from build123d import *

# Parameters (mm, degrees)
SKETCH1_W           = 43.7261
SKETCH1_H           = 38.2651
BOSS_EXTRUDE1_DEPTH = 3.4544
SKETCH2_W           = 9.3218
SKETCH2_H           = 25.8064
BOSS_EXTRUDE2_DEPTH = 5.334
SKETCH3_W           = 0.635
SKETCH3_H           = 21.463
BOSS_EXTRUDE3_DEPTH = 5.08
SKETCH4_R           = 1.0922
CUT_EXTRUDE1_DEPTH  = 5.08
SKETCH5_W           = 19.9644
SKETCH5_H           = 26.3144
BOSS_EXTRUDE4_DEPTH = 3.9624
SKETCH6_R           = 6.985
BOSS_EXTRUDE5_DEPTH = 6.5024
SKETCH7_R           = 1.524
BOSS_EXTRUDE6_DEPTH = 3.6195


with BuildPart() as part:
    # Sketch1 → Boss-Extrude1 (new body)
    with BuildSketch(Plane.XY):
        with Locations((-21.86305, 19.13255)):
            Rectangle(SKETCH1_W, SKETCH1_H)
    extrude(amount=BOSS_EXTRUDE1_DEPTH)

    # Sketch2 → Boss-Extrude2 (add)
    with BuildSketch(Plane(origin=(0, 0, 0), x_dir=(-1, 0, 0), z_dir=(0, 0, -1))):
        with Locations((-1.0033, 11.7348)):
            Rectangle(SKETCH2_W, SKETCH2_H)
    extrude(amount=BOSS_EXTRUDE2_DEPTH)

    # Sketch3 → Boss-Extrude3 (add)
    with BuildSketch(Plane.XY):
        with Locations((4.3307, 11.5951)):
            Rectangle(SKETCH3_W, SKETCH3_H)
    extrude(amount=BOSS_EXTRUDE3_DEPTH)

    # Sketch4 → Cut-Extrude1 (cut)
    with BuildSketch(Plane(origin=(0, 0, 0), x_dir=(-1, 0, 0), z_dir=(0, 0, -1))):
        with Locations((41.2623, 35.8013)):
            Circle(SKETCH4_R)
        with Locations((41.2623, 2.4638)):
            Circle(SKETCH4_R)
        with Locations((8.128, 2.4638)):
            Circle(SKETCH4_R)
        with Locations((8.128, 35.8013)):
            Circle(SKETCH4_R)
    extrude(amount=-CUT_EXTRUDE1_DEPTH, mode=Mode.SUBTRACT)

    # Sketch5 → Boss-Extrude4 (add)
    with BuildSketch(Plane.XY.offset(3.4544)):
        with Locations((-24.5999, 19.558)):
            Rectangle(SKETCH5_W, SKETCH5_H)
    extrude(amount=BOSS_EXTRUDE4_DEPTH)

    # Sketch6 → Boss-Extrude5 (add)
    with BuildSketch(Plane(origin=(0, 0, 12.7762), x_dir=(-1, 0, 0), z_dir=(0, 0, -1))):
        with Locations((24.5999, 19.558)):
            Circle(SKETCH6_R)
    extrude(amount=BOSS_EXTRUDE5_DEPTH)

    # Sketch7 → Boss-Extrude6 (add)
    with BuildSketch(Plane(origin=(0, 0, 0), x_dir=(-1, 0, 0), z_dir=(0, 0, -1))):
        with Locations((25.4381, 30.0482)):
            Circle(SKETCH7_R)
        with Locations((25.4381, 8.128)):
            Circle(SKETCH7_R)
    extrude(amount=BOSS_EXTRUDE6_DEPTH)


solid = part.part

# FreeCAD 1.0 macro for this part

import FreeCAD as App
import Part
import Sketcher

V = App.Vector
Q = App.Units.Quantity


def add_polygon(sketch, points):
    """Adds a closed chain of lines whose ends are joined by coincident constraints."""
    first, n = sketch.GeometryCount, len(points)
    for a, b in zip(points, points[1:] + points[:1]):
        sketch.addGeometry(Part.LineSegment(App.Vector(*a, 0), App.Vector(*b, 0)), False)
    for i in range(n):
        sketch.addConstraint(Sketcher.Constraint("Coincident", first + i, 2, first + (i + 1) % n, 1))

doc = App.newDocument("Part")
body = doc.addObject("PartDesign::Body", "Body")

sketch1 = body.newObject("Sketcher::SketchObject", "Sketch")
sketch1.AttachmentSupport = (doc.getObject("XY_Plane"), [""])
sketch1.MapMode = "FlatFace"
add_polygon(sketch1, [(-44, 38), (-44, 0), (0, 0), (0, 38)])
sketch1.addConstraint([
    Sketcher.Constraint("Vertical", 0),
    Sketcher.Constraint("Horizontal", 1),
    Sketcher.Constraint("Vertical", 2),
    Sketcher.Constraint("Horizontal", 3),
    Sketcher.Constraint("Coincident", 1, 2, -1, 1),
    Sketcher.Constraint("DistanceX", 1, 1, 1, 2, Q("1.7215 in")),
    Sketcher.Constraint("DistanceY", 0, 2, 0, 1, Q("1.5065 in")),
])
pad1 = body.newObject("PartDesign::Pad", "Pad")
pad1.Profile = sketch1
pad1.Length = Q("0.136 in")

sketch2 = body.newObject("Sketcher::SketchObject", "Sketch001")
sketch2.AttachmentSupport = (doc.getObject("XY_Plane"), [""])
sketch2.MapMode = "FlatFace"
add_polygon(sketch2, [(6, 25), (6, -1), (-4, -1), (-4, 25)])
sketch2.addConstraint([
    Sketcher.Constraint("Vertical", 0),
    Sketcher.Constraint("Horizontal", 1),
    Sketcher.Constraint("Vertical", 2),
    Sketcher.Constraint("Horizontal", 3),
    Sketcher.Constraint("DistanceX", 1, 2, 1, 1, Q("0.367 in")),
    Sketcher.Constraint("DistanceY", 0, 2, 0, 1, Q("1.016 in")),
    Sketcher.Constraint("DistanceY", -1, 1, 2, 2, Q("0.97 in")),
    Sketcher.Constraint("DistanceX", -1, 1, 0, 2, Q("0.223 in")),
])
pad2 = body.newObject("PartDesign::Pad", "Pad001")
pad2.Profile = sketch2
pad2.Length = Q("0.21 in")
pad2.Reversed = True

sketch3 = body.newObject("Sketcher::SketchObject", "Sketch002")
sketch3.AttachmentSupport = (doc.getObject("XY_Plane"), [""])
sketch3.MapMode = "FlatFace"
add_polygon(sketch3, [(4, 22.3), (4, 0.9), (4.6, 0.9), (4.6, 22.3)])
sketch3.addConstraint([
    Sketcher.Constraint("Vertical", 0),
    Sketcher.Constraint("Horizontal", 1),
    Sketcher.Constraint("Vertical", 2),
    Sketcher.Constraint("Horizontal", 3),
    Sketcher.Constraint("DistanceX", 1, 1, 1, 2, Q("0.025 in")),
    Sketcher.Constraint("DistanceY", 0, 2, 0, 1, Q("0.845 in")),
    Sketcher.Constraint("DistanceX", -1, 1, 0, 2, Q("0.158 in")),
    Sketcher.Constraint("DistanceY", -1, 1, 0, 2, Q("0.034 in")),
])
pad3 = body.newObject("PartDesign::Pad", "Pad002")
pad3.Profile = sketch3
pad3.Length = Q("0.2 in")

sketch4 = body.newObject("Sketcher::SketchObject", "Sketch003")
sketch4.AttachmentSupport = (doc.getObject("XY_Plane"), [""])
sketch4.MapMode = "FlatFace"
sketch4.addGeometry([
    Part.Circle(V(-41.3, 35.8, 0), V(0, 0, 1), 1.1),
    Part.Circle(V(-41.3, 2.5, 0), V(0, 0, 1), 1.1),
    Part.Circle(V(-8.1, 2.5, 0), V(0, 0, 1), 1.1),
    Part.Circle(V(-8.1, 35.8, 0), V(0, 0, 1), 1.1),
], False)
sketch4.addConstraint([
    Sketcher.Constraint("Equal", 0, 1),
    Sketcher.Constraint("Equal", 1, 2),
    Sketcher.Constraint("Equal", 2, 3),
    Sketcher.Constraint("Horizontal", 1, 3, 2, 3),
    Sketcher.Constraint("Horizontal", 0, 3, 3, 3),
    Sketcher.Constraint("Vertical", 0, 3, 1, 3),
    Sketcher.Constraint("Vertical", 2, 3, 3, 3),
    Sketcher.Constraint("Diameter", 0, Q("0.086 in")),
    Sketcher.Constraint("DistanceX", 2, 3, -1, 1, Q("0.32 in")),
    Sketcher.Constraint("DistanceY", -1, 1, 1, 3, Q("0.097 in")),
    Sketcher.Constraint("DistanceY", 1, 3, 0, 3, Q("1.3125 in")),
    Sketcher.Constraint("DistanceX", 0, 3, -1, 1, Q("1.6245 in")),
])
pocket1 = body.newObject("PartDesign::Pocket", "Pocket")
pocket1.Profile = sketch4
pocket1.Length = Q("0.2 in")
pocket1.Reversed = True

sketch5 = body.newObject("Sketcher::SketchObject", "Sketch004")
sketch5.AttachmentSupport = (doc.getObject("XY_Plane"), [""])
sketch5.MapMode = "FlatFace"
sketch5.AttachmentOffset = App.Placement(V(0, 0, 0.136 * 25.4), App.Rotation())
add_polygon(sketch5, [(-35, 33), (-35, 6), (-15, 6), (-15, 33)])
sketch5.addConstraint([
    Sketcher.Constraint("Vertical", 0),
    Sketcher.Constraint("Horizontal", 1),
    Sketcher.Constraint("Vertical", 2),
    Sketcher.Constraint("Horizontal", 3),
    Sketcher.Constraint("DistanceX", 1, 1, 1, 2, Q("0.786 in")),
    Sketcher.Constraint("DistanceY", 0, 2, 0, 1, Q("1.036 in")),
    Sketcher.Constraint("DistanceY", -1, 1, 0, 2, Q("0.252 in")),
    Sketcher.Constraint("DistanceX", 0, 2, -1, 1, Q("1.3615 in")),
])
pad4 = body.newObject("PartDesign::Pad", "Pad003")
pad4.Profile = sketch5
pad4.Length = Q("0.156 in")

sketch6 = body.newObject("Sketcher::SketchObject", "Sketch005")
sketch6.AttachmentSupport = (doc.getObject("XY_Plane"), [""])
sketch6.MapMode = "FlatFace"
sketch6.AttachmentOffset = App.Placement(V(0, 0, 0.503 * 25.4), App.Rotation())
sketch6.addGeometry(Part.Circle(V(-25, 20, 0), V(0, 0, 1), 7), False)
sketch6.addConstraint([
    Sketcher.Constraint("Diameter", 0, Q("0.55 in")),
    Sketcher.Constraint("DistanceY", -1, 1, 0, 3, Q("0.77 in")),
    Sketcher.Constraint("DistanceX", 0, 3, -1, 1, Q("0.9685 in")),
])
pad5 = body.newObject("PartDesign::Pad", "Pad004")
pad5.Profile = sketch6
pad5.Length = Q("0.256 in")
pad5.Reversed = True

sketch7 = body.newObject("Sketcher::SketchObject", "Sketch006")
sketch7.AttachmentSupport = (doc.getObject("XY_Plane"), [""])
sketch7.MapMode = "FlatFace"
sketch7.addGeometry([
    Part.Circle(V(-25.4, 30, 0), V(0, 0, 1), 1.5),
    Part.Circle(V(-25.4, 8.1, 0), V(0, 0, 1), 1.5),
], False)
sketch7.addConstraint([
    Sketcher.Constraint("Equal", 0, 1),
    Sketcher.Constraint("Vertical", 0, 3, 1, 3),
    Sketcher.Constraint("Diameter", 0, Q("0.12 in")),
    Sketcher.Constraint("DistanceY", -1, 1, 1, 3, Q("0.32 in")),
    Sketcher.Constraint("DistanceY", -1, 1, 0, 3, Q("1.183 in")),
    Sketcher.Constraint("DistanceX", 0, 3, -1, 1, Q("1.0015 in")),
])
pad6 = body.newObject("PartDesign::Pad", "Pad005")
pad6.Profile = sketch7
pad6.Length = Q("0.1425 in")
pad6.Reversed = True

doc.recompute()
